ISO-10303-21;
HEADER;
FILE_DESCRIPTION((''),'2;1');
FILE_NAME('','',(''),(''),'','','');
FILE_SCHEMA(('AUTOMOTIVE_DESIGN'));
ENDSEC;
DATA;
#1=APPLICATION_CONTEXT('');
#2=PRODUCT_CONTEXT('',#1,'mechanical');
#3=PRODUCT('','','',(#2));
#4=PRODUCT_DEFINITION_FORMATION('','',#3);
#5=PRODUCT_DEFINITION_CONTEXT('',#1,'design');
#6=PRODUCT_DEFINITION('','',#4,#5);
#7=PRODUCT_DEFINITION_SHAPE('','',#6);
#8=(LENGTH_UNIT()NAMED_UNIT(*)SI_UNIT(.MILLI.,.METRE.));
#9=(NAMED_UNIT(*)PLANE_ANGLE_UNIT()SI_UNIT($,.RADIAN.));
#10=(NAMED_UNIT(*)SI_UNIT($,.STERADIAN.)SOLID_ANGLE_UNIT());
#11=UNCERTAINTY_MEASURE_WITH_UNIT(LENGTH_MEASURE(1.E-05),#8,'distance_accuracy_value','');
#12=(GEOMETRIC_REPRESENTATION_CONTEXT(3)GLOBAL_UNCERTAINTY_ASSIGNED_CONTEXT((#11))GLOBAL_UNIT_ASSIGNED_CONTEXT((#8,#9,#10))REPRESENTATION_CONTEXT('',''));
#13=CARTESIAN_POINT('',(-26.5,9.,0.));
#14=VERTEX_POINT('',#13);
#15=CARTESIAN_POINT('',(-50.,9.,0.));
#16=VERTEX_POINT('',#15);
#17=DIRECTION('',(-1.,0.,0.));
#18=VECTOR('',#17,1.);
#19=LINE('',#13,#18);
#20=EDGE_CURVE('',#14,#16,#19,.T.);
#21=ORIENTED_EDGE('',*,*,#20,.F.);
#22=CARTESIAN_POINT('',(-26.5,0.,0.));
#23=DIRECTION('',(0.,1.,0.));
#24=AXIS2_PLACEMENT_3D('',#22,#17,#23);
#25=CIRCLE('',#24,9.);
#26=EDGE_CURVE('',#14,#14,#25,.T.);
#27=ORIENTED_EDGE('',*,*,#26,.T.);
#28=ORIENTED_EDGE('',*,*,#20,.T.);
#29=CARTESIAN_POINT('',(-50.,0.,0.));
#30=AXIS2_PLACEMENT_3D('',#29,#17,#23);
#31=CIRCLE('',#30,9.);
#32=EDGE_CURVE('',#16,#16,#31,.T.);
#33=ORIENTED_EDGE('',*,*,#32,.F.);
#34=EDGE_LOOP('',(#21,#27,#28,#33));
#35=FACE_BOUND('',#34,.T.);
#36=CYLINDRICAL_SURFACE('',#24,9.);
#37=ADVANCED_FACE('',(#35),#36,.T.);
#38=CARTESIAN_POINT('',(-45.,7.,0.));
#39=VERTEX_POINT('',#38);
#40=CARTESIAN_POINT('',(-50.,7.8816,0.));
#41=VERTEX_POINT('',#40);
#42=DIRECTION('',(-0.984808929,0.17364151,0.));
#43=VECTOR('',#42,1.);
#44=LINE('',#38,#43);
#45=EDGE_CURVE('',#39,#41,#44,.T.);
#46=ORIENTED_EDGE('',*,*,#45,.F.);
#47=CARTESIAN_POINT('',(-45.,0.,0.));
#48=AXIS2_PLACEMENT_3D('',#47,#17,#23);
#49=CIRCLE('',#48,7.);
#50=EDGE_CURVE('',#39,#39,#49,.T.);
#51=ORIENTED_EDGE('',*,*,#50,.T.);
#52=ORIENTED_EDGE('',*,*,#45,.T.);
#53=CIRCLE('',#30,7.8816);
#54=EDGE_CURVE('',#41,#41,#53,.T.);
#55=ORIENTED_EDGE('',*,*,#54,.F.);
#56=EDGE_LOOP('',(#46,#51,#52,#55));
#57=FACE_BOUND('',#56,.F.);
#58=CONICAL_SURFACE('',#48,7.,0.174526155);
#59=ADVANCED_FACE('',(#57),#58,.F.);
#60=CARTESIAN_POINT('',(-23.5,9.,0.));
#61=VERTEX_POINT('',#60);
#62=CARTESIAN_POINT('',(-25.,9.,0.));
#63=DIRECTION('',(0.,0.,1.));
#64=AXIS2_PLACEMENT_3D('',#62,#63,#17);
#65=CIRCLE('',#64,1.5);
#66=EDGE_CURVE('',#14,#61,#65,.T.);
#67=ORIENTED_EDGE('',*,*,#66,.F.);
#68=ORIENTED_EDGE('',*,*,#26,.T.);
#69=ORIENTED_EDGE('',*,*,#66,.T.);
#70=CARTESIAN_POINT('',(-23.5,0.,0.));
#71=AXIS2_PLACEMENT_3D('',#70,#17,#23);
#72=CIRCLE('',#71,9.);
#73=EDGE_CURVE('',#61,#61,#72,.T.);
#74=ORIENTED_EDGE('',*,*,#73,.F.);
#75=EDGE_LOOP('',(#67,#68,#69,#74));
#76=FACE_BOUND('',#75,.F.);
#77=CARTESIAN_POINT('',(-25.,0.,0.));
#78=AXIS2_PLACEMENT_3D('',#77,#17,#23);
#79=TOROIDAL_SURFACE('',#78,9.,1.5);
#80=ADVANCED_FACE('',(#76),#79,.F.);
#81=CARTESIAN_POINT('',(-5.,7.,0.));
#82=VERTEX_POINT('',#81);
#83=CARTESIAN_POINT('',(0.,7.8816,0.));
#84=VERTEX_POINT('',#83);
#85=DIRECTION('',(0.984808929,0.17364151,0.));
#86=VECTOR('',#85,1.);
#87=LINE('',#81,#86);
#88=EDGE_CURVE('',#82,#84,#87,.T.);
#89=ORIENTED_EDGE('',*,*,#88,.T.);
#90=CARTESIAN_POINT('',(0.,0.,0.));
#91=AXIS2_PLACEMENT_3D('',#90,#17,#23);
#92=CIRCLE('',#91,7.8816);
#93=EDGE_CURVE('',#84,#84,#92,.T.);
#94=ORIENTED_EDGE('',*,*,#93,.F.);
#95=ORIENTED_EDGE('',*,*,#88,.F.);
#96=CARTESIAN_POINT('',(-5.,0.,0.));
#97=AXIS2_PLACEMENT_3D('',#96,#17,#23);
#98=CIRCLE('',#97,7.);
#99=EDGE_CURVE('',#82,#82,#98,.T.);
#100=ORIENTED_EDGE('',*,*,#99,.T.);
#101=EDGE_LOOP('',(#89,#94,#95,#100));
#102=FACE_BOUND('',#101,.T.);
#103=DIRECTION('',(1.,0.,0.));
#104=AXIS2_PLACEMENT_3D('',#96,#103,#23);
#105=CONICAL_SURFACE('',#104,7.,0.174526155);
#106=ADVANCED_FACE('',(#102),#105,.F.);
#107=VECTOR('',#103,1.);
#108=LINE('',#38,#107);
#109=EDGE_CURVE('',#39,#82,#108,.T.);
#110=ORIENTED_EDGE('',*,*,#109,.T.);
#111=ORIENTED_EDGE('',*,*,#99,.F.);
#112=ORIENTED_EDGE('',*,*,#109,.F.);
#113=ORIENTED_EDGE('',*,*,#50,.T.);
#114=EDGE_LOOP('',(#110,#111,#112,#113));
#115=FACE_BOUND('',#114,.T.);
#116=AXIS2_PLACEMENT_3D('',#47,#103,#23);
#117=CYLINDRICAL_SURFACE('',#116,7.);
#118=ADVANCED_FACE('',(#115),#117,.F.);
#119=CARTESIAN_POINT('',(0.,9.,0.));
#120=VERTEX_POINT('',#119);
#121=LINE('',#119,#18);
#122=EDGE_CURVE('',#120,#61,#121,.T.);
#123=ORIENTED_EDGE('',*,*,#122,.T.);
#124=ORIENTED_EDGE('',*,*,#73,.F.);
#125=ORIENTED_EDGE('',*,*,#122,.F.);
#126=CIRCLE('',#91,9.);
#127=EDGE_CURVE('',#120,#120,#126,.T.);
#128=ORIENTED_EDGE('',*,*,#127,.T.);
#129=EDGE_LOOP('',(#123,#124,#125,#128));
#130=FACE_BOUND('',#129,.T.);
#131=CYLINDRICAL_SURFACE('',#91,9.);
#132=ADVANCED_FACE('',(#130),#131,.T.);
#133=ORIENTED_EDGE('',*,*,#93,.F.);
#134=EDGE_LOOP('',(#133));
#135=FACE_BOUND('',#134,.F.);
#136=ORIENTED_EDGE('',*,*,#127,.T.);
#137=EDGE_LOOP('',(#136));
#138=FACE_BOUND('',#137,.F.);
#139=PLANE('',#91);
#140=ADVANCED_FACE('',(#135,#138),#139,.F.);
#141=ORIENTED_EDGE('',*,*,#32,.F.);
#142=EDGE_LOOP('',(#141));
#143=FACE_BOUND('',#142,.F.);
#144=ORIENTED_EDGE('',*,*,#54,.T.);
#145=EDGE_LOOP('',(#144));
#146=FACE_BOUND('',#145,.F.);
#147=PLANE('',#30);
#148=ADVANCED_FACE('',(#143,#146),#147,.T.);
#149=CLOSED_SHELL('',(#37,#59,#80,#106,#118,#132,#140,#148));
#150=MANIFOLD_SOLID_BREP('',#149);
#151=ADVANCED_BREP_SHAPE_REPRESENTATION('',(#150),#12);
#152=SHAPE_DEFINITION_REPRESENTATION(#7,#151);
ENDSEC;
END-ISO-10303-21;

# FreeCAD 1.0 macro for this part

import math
import FreeCAD as App
import Part
import Sketcher

V = App.Vector
Q = App.Units.Quantity

doc = App.newDocument("Part")
params = doc.addObject("Spreadsheet::Sheet", "Params")
for row, (alias, value) in enumerate([
    ("sketch1_radius", "1.5 mm"),
    ("revolution_angle", "360 deg"),
], start=1):
    params.set(f"A{row}", alias)
    params.set(f"B{row}", "=" + value)
    params.setAlias(f"B{row}", alias)

body = doc.addObject("PartDesign::Body", "Body")

# Sketch on XY plane
sketch1 = body.newObject("Sketcher::SketchObject", "Sketch")
sketch1.AttachmentSupport = (doc.getObject("XY_Plane"), [""])
sketch1.MapMode = "FlatFace"
sketch1.addGeometry([
    Part.ArcOfCircle(Part.Circle(V(-25, 9, 0), V(0, 0, 1), 1.5), math.radians(180), math.radians(360)),  # 0
    Part.LineSegment(V(-26.5, 9, 0), V(-50, 9, 0)),  # 1
    Part.LineSegment(V(-50, 9, 0), V(-50, 7.8816, 0)),  # 2
    Part.LineSegment(V(-50, 7.8816, 0), V(-45, 7, 0)),  # 3
    Part.LineSegment(V(-45, 7, 0), V(-5, 7, 0)),  # 4
    Part.LineSegment(V(-5, 7, 0), V(0, 7.8816, 0)),  # 5
    Part.LineSegment(V(0, 7.8816, 0), V(0, 9, 0)),  # 6
    Part.LineSegment(V(0, 9, 0), V(-23.5, 9, 0)),  # 7
], False)
sketch1.addConstraint([
    Sketcher.Constraint("Coincident", 0, 1, 1, 1),
    Sketcher.Constraint("Coincident", 1, 2, 2, 1),
    Sketcher.Constraint("Coincident", 2, 2, 3, 1),
    Sketcher.Constraint("Coincident", 3, 2, 4, 1),
    Sketcher.Constraint("Coincident", 4, 2, 5, 1),
    Sketcher.Constraint("Coincident", 5, 2, 6, 1),
    Sketcher.Constraint("Coincident", 6, 2, 7, 1),
    Sketcher.Constraint("Coincident", 7, 2, 0, 2),
    Sketcher.Constraint("Horizontal", 1),
    Sketcher.Constraint("Vertical", 2),
    Sketcher.Constraint("Horizontal", 4),
    Sketcher.Constraint("Vertical", 6),
    Sketcher.Constraint("Horizontal", 7),
    Sketcher.Constraint("PointOnObject", 5, 2, -2),
    Sketcher.Constraint("Horizontal", 2, 2, 5, 2),
    Sketcher.Constraint("Horizontal", 1, 2, 6, 2),
    Sketcher.Constraint("Equal", 1, 7),
    Sketcher.Constraint("Equal", 3, 5),
    Sketcher.Constraint("Radius", 0, Q("1.5 mm")),
    Sketcher.Constraint("Angle", 3, Q("-9.9996 deg")),
    Sketcher.Constraint("DistanceX", 1, 2, -1, 1, Q("50 mm")),
    Sketcher.Constraint("DistanceX", 4, 2, -1, 1, Q("5 mm")),
    Sketcher.Constraint("DistanceY", -1, 1, 0, 3, Q("9 mm")),
    Sketcher.Constraint("DistanceY", -1, 1, 0, 1, Q("9 mm")),
    Sketcher.Constraint("DistanceY", -1, 1, 3, 2, Q("7 mm")),
])
sketch1.setExpression("Constraints[18]", "Params.sketch1_radius")
revolution = body.newObject("PartDesign::Revolution", "Revolution")
revolution.Profile = sketch1
revolution.ReferenceAxis = (sketch1, ["H_Axis"])
revolution.setExpression("Angle", "Params.revolution_angle")

doc.recompute()
